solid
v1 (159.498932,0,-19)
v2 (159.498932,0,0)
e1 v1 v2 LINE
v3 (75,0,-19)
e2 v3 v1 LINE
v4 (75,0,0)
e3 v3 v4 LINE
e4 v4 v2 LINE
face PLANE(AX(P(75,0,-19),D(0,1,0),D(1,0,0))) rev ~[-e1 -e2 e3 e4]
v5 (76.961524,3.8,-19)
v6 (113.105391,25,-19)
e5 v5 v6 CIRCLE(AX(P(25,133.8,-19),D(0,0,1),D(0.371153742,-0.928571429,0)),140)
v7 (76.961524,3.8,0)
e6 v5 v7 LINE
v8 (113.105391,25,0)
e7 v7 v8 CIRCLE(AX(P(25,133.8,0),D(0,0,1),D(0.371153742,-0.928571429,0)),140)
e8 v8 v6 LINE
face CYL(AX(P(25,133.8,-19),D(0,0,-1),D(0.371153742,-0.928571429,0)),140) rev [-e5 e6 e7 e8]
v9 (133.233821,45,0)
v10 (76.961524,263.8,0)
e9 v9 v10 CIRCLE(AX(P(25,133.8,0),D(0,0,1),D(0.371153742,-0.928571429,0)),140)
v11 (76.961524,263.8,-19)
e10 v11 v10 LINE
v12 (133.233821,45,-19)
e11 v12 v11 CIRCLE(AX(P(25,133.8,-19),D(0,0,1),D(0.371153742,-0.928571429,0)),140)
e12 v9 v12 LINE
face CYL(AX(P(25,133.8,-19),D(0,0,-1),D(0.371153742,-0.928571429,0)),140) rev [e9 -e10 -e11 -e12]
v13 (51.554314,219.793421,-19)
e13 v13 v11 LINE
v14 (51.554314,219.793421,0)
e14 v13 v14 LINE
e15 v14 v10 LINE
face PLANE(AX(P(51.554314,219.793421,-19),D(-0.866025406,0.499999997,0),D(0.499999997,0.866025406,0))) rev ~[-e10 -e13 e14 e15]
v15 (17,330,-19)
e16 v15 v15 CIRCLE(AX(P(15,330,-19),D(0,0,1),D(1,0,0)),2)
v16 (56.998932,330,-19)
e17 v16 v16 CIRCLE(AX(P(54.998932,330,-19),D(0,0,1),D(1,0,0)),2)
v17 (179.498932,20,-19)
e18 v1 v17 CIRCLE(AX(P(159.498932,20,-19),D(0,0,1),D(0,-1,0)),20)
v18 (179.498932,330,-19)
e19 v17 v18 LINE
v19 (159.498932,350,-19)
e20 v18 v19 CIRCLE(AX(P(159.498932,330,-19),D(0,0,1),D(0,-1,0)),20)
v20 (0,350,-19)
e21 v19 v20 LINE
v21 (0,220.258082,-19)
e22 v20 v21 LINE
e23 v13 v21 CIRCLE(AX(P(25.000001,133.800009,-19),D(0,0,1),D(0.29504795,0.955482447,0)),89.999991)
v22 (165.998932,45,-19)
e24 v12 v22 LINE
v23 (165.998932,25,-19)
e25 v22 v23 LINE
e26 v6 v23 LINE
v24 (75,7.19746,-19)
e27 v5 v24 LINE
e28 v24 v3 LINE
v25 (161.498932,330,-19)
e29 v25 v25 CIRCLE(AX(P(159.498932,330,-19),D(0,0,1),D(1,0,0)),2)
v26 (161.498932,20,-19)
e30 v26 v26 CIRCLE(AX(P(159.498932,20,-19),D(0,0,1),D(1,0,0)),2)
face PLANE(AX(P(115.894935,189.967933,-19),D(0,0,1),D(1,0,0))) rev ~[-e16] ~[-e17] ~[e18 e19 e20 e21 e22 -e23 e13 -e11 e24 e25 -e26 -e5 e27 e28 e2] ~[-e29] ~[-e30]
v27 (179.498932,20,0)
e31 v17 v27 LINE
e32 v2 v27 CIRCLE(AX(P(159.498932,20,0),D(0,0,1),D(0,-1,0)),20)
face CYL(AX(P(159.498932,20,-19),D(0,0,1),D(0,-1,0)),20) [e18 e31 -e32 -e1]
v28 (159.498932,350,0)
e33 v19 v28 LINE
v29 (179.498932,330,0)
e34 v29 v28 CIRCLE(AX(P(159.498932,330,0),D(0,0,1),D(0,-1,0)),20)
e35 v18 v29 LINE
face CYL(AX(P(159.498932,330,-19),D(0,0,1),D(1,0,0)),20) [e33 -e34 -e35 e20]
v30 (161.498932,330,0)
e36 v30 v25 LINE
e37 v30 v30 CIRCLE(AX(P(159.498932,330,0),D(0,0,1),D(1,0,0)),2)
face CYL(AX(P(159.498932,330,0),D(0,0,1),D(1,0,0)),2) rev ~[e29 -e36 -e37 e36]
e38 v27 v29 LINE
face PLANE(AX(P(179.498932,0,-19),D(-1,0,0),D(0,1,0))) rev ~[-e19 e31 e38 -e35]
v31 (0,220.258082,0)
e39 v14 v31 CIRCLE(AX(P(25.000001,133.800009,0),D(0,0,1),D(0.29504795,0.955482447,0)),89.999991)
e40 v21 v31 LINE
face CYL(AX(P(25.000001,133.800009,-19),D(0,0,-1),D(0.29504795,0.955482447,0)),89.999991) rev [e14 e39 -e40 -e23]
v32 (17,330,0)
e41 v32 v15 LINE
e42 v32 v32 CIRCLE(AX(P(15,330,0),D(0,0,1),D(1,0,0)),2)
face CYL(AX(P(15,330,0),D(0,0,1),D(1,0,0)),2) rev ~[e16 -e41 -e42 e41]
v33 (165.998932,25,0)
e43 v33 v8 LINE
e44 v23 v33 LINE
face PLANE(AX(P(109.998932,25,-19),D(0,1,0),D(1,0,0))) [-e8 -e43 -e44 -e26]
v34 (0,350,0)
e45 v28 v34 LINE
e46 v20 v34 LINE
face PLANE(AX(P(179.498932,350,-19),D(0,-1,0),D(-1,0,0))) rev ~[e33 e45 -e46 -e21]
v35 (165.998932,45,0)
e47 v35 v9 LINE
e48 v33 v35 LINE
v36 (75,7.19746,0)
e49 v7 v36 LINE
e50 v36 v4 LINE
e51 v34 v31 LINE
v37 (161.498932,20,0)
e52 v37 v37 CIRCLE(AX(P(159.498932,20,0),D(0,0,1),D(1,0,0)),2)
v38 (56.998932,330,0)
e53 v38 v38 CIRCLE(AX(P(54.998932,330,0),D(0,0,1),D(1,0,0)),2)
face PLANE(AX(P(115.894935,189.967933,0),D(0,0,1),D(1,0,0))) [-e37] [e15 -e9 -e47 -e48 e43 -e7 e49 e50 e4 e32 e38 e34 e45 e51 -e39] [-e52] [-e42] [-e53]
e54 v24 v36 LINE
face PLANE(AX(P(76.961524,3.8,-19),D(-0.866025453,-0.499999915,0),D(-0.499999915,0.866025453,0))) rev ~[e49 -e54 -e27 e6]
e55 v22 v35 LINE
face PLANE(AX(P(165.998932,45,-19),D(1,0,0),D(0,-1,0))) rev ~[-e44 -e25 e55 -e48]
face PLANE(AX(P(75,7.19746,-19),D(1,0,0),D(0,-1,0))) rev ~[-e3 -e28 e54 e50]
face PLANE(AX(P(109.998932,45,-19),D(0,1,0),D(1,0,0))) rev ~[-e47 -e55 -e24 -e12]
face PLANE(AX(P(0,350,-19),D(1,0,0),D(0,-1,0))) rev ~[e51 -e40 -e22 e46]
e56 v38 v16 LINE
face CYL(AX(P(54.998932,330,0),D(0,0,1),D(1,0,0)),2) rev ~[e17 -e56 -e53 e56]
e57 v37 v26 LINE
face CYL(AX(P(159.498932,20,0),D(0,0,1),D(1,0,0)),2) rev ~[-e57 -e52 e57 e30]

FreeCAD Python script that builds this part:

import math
import FreeCAD as App
import Part
import Sketcher
Q = App.Units.Quantity


def edges_at(feature, points):
    """Names of the edges that pass closest to the given points."""
    edges = feature.Shape.Edges
    near = lambda p: min(range(len(edges)), key=lambda i: edges[i].distToShape(Part.Vertex(*p))[0])
    return sorted({f"Edge{near(p) + 1}" for p in points})


def add_polygon(sketch, points):
    """Adds a closed chain of lines whose ends are joined by coincident constraints."""
    first, n = sketch.GeometryCount, len(points)
    for a, b in zip(points, points[1:] + points[:1]):
        sketch.addGeometry(Part.LineSegment(App.Vector(*a, 0), App.Vector(*b, 0)), False)
    for i in range(n):
        sketch.addConstraint(Sketcher.Constraint("Coincident", first + i, 2, first + (i + 1) % n, 1))

doc = App.newDocument("Part")
body = doc.addObject("PartDesign::Body", "Body")

# Sketch on XY plane
sketch1 = body.newObject("Sketcher::SketchObject", "Sketch")
sketch1.AttachmentSupport = (doc.getObject("XY_Plane"), [""])
sketch1.MapMode = "FlatFace"
sketch1.addGeometry([
    Part.LineSegment(App.Vector(200, 216.2, 0), App.Vector(200, 86.5, 0)),  # 0
    Part.ArcOfCircle(Part.Circle(App.Vector(225, 0, 0), App.Vector(0, 0, 1), 90), math.radians(73), math.radians(106)),  # 1
    Part.LineSegment(App.Vector(251.6, 86, 0), App.Vector(277, 130, 0)),  # 2
    Part.ArcOfCircle(Part.Circle(App.Vector(225, 0, 0), App.Vector(0, 0, 1), 140), math.radians(-68), math.radians(68)),  # 3
    Part.LineSegment(App.Vector(277, -130, 0), App.Vector(275, -126.6, 0)),  # 4
    Part.LineSegment(App.Vector(275, -126.6, 0), App.Vector(275, -133.8, 0)),  # 5
    Part.LineSegment(App.Vector(275, -133.8, 0), App.Vector(379.5, -133.8, 0)),  # 6
    Part.LineSegment(App.Vector(379.5, -133.8, 0), App.Vector(379.5, 216.2, 0)),  # 7
    Part.LineSegment(App.Vector(379.5, 216.2, 0), App.Vector(200, 216.2, 0)),  # 8
], False)
sketch1.addConstraint([
    Sketcher.Constraint("Coincident", 0, 2, 1, 2),
    Sketcher.Constraint("Coincident", 1, 1, 2, 1),
    Sketcher.Constraint("Coincident", 2, 2, 3, 2),
    Sketcher.Constraint("Coincident", 3, 1, 4, 1),
    Sketcher.Constraint("Coincident", 4, 2, 5, 1),
    Sketcher.Constraint("Coincident", 5, 2, 6, 1),
    Sketcher.Constraint("Coincident", 6, 2, 7, 1),
    Sketcher.Constraint("Coincident", 7, 2, 8, 1),
    Sketcher.Constraint("Coincident", 8, 2, 0, 1),
    Sketcher.Constraint("Vertical", 0),
    Sketcher.Constraint("Vertical", 5),
    Sketcher.Constraint("Horizontal", 6),
    Sketcher.Constraint("Vertical", 7),
    Sketcher.Constraint("Horizontal", 8),
    Sketcher.Constraint("Coincident", 3, 3, 1, 3),
    Sketcher.Constraint("Symmetric", 2, 2, 3, 1, -1),
    Sketcher.Constraint("Radius", 3, 140.0),
    Sketcher.Constraint("DistanceY", 7, 1, 7, 2, 350.0),
    Sketcher.Constraint("Angle", 2, Q("60 deg")),
    Sketcher.Constraint("Angle", 4, Q("119.999994 deg")),
    Sketcher.Constraint("DistanceX", -1, 1, 1, 3, 225.000001),
    Sketcher.Constraint("DistanceX", -1, 1, 0, 2, 200.0),
    Sketcher.Constraint("DistanceY", -1, 1, 2, 2, 130.0),
    Sketcher.Constraint("DistanceX", -1, 1, 4, 2, 275.0),
    Sketcher.Constraint("DistanceY", 5, 2, -1, 1, 133.8),
    Sketcher.Constraint("Radius", 1, 89.999991),
    Sketcher.Constraint("DistanceX", 6, 1, 6, 2, 104.498932),
])
pad1 = body.newObject("PartDesign::Pad", "Pad")
pad1.Profile = sketch1
pad1.Length = 19
doc.recompute()

fillet = body.newObject("PartDesign::Fillet", "Fillet")
fillet.Base = (pad1, edges_at(pad1, [(379.499, 216.2, 9.5), (379.499, -133.8, 9.5)]))
fillet.Radius = 20

# Sketch on XY plane
sketch2 = body.newObject("Sketcher::SketchObject", "Sketch001")
sketch2.AttachmentSupport = (doc.getObject("XY_Plane"), [""])
sketch2.MapMode = "FlatFace"
sketch2.AttachmentOffset = App.Placement(App.Vector(0, 0, 19), App.Rotation())
sketch2.addGeometry(Part.Circle(App.Vector(215, 196.2, 0), App.Vector(0, 0, 1), 2), False)
sketch2.addConstraint([
    Sketcher.Constraint("Diameter", 0, 4.0),
    Sketcher.Constraint("DistanceX", -1, 1, 0, 3, 215.0),
    Sketcher.Constraint("DistanceY", -1, 1, 0, 3, 196.2),
])
pocket1 = body.newObject("PartDesign::Pocket", "Pocket")
pocket1.Profile = sketch2
pocket1.Type = "ThroughAll"

# Sketch on XY plane
sketch3 = body.newObject("Sketcher::SketchObject", "Sketch002")
sketch3.AttachmentSupport = (doc.getObject("XY_Plane"), [""])
sketch3.MapMode = "FlatFace"
sketch3.AttachmentOffset = App.Placement(App.Vector(0, 0, 19), App.Rotation())
sketch3.addGeometry([
    Part.Circle(App.Vector(255, 196.2, 0), App.Vector(0, 0, 1), 2),
    Part.Circle(App.Vector(359.5, 196.2, 0), App.Vector(0, 0, 1), 2),
    Part.Circle(App.Vector(359.5, -113.8, 0), App.Vector(0, 0, 1), 2),
], False)
sketch3.addConstraint([
    Sketcher.Constraint("Equal", 0, 1),
    Sketcher.Constraint("Equal", 1, 2),
    Sketcher.Constraint("Horizontal", 0, 3, 1, 3),
    Sketcher.Constraint("Vertical", 1, 3, 2, 3),
    Sketcher.Constraint("Diameter", 0, 4.0),
    Sketcher.Constraint("DistanceY", 2, 3, 1, 3, 310.0),
    Sketcher.Constraint("DistanceY", -1, 1, 0, 3, 196.2),
    Sketcher.Constraint("DistanceX", 0, 3, 1, 3, 104.5),
    Sketcher.Constraint("DistanceX", -1, 1, 0, 3, 254.998932),
])
pocket2 = body.newObject("PartDesign::Pocket", "Pocket001")
pocket2.Profile = sketch3
pocket2.Type = "ThroughAll"

# Sketch on XY plane
sketch4 = body.newObject("Sketcher::SketchObject", "Sketch003")
sketch4.AttachmentSupport = (doc.getObject("XY_Plane"), [""])
sketch4.MapMode = "FlatFace"
add_polygon(sketch4, [(310, -109), (310, -89), (366, -89), (366, -109)])  # lines 0-3
sketch4.addConstraint([
    Sketcher.Constraint("Vertical", 0),
    Sketcher.Constraint("Horizontal", 1),
    Sketcher.Constraint("Vertical", 2),
    Sketcher.Constraint("Horizontal", 3),
    Sketcher.Constraint("DistanceX", 1, 1, 1, 2, 56.0),
    Sketcher.Constraint("DistanceY", 0, 1, 0, 2, 20.0),
    Sketcher.Constraint("DistanceY", 0, 2, -1, 1, 88.8),
    Sketcher.Constraint("DistanceX", -1, 1, 0, 2, 309.998932),
])
pocket3 = body.newObject("PartDesign::Pocket", "Pocket002")
pocket3.Profile = sketch4
pocket3.Type = "ThroughAll"
pocket3.Reversed = True
body2 = doc.addObject("PartDesign::Body", "Body001")
doc.recompute()

body.Placement = App.Placement(App.Vector(0, 0, -9), App.Rotation(App.Vector(0, 0, 1), 0))
boolean = body2.newObject("PartDesign::Boolean", "Boolean")
boolean.Type = "Fuse"
boolean.addObjects([body])
body3 = doc.addObject("PartDesign::Body", "Body002")
doc.recompute()

body2.Placement = App.Placement(App.Vector(-200, 133.8, -10), App.Rotation(App.Vector(0, 0, 1), 0))
boolean2 = body3.newObject("PartDesign::Boolean", "Boolean001")
boolean2.Type = "Fuse"
boolean2.addObjects([body2])

doc.recompute()
